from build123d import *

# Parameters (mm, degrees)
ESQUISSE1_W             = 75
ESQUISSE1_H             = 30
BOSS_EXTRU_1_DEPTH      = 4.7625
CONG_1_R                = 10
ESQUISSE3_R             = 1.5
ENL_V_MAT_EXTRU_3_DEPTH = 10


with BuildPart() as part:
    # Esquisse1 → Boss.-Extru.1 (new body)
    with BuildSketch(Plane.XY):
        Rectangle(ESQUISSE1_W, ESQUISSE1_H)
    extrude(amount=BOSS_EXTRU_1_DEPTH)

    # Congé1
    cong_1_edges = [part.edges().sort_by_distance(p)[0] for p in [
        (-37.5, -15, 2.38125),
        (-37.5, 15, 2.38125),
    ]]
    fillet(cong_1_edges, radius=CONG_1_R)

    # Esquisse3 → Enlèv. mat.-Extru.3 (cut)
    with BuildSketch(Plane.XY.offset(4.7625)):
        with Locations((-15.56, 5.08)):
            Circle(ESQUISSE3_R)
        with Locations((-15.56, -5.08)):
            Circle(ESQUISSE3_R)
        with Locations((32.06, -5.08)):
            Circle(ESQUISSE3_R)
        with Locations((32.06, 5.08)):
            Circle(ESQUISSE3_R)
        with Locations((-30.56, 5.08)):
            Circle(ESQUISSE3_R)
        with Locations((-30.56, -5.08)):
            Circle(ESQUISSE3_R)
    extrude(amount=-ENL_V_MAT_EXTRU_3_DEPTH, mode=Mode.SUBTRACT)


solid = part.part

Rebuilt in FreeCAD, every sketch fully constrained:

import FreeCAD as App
import Part
import Sketcher
from FreeCAD import Vector
Q = App.Units.Quantity


def edges_at(feature, points):
    """Names of the edges that pass closest to the given points."""
    edges = feature.Shape.Edges
    near = lambda p: min(range(len(edges)), key=lambda i: edges[i].distToShape(Part.Vertex(*p))[0])
    return sorted({f"Edge{near(p) + 1}" for p in points})


def add_polygon(sketch, points):
    """Adds a closed chain of lines whose ends are joined by coincident constraints."""
    first, n = sketch.GeometryCount, len(points)
    for a, b in zip(points, points[1:] + points[:1]):
        sketch.addGeometry(Part.LineSegment(App.Vector(*a, 0), App.Vector(*b, 0)), False)
    for i in range(n):
        sketch.addConstraint(Sketcher.Constraint("Coincident", first + i, 2, first + (i + 1) % n, 1))

doc = App.newDocument("Part")
body = doc.addObject("PartDesign::Body", "Body")

# Sketch on XY plane
sketch1 = body.newObject("Sketcher::SketchObject", "Sketch")
sketch1.AttachmentSupport = (doc.getObject("XY_Plane"), [""])
sketch1.MapMode = "FlatFace"
add_polygon(sketch1, [(-37.5, 15), (-37.5, -15), (37.5, -15), (37.5, 15)])  # lines 0-3
sketch1.addConstraint([
    Sketcher.Constraint("Vertical", 0),
    Sketcher.Constraint("Horizontal", 1),
    Sketcher.Constraint("Vertical", 2),
    Sketcher.Constraint("Horizontal", 3),
    Sketcher.Constraint("Symmetric", 0, 2, 2, 2, -1, 1),
    Sketcher.Constraint("DistanceX", 1, 1, 1, 2, Q("75 mm")),
    Sketcher.Constraint("DistanceY", 0, 2, 0, 1, Q("30 mm")),
])
pad1 = body.newObject("PartDesign::Pad", "Pad")
pad1.Profile = sketch1
pad1.Length = 4.7625
doc.recompute()

fillet = body.newObject("PartDesign::Fillet", "Fillet")
fillet.Base = (pad1, edges_at(pad1, [(-37.5, -15, 2.381), (-37.5, 15, 2.381)]))
fillet.Radius = 10

# Sketch on XY plane
sketch2 = body.newObject("Sketcher::SketchObject", "Sketch001")
sketch2.AttachmentSupport = (doc.getObject("XY_Plane"), [""])
sketch2.MapMode = "FlatFace"
sketch2.AttachmentOffset = App.Placement(Vector(0, 0, 4.7625), App.Rotation())
sketch2.addGeometry([
    Part.Circle(Vector(-15.56, 5.08, 0), Vector(0, 0, 1), 1.5),  # 0
    Part.Circle(Vector(-15.56, -5.08, 0), Vector(0, 0, 1), 1.5),  # 1
    Part.Circle(Vector(32.06, -5.08, 0), Vector(0, 0, 1), 1.5),  # 2
    Part.Circle(Vector(32.06, 5.08, 0), Vector(0, 0, 1), 1.5),  # 3
    Part.Circle(Vector(-30.56, 5.08, 0), Vector(0, 0, 1), 1.5),  # 4
    Part.Circle(Vector(-30.56, -5.08, 0), Vector(0, 0, 1), 1.5),  # 5
], False)
sketch2.addConstraint([
    Sketcher.Constraint("Equal", 0, 1),
    Sketcher.Constraint("Equal", 1, 2),
    Sketcher.Constraint("Equal", 2, 3),
    Sketcher.Constraint("Equal", 3, 4),
    Sketcher.Constraint("Equal", 4, 5),
    Sketcher.Constraint("Symmetric", 0, 3, 1, 3, -1),
    Sketcher.Constraint("Symmetric", 2, 3, 3, 3, -1),
    Sketcher.Constraint("Symmetric", 4, 3, 5, 3, -1),
    Sketcher.Constraint("Horizontal", 1, 3, 2, 3),
    Sketcher.Constraint("Horizontal", 3, 3, 4, 3),
    Sketcher.Constraint("Diameter", 0, Q("3 mm")),
    Sketcher.Constraint("DistanceX", 4, 3, 0, 3, Q("15 mm")),
    Sketcher.Constraint("DistanceX", 0, 3, -1, 1, Q("15.56 mm")),
    Sketcher.Constraint("DistanceY", -1, 1, 0, 3, Q("5.08 mm")),
    Sketcher.Constraint("DistanceX", -1, 1, 2, 3, Q("32.06 mm")),
])
pocket1 = body.newObject("PartDesign::Pocket", "Pocket")
pocket1.Profile = sketch2
pocket1.Length = 10

doc.recompute()
